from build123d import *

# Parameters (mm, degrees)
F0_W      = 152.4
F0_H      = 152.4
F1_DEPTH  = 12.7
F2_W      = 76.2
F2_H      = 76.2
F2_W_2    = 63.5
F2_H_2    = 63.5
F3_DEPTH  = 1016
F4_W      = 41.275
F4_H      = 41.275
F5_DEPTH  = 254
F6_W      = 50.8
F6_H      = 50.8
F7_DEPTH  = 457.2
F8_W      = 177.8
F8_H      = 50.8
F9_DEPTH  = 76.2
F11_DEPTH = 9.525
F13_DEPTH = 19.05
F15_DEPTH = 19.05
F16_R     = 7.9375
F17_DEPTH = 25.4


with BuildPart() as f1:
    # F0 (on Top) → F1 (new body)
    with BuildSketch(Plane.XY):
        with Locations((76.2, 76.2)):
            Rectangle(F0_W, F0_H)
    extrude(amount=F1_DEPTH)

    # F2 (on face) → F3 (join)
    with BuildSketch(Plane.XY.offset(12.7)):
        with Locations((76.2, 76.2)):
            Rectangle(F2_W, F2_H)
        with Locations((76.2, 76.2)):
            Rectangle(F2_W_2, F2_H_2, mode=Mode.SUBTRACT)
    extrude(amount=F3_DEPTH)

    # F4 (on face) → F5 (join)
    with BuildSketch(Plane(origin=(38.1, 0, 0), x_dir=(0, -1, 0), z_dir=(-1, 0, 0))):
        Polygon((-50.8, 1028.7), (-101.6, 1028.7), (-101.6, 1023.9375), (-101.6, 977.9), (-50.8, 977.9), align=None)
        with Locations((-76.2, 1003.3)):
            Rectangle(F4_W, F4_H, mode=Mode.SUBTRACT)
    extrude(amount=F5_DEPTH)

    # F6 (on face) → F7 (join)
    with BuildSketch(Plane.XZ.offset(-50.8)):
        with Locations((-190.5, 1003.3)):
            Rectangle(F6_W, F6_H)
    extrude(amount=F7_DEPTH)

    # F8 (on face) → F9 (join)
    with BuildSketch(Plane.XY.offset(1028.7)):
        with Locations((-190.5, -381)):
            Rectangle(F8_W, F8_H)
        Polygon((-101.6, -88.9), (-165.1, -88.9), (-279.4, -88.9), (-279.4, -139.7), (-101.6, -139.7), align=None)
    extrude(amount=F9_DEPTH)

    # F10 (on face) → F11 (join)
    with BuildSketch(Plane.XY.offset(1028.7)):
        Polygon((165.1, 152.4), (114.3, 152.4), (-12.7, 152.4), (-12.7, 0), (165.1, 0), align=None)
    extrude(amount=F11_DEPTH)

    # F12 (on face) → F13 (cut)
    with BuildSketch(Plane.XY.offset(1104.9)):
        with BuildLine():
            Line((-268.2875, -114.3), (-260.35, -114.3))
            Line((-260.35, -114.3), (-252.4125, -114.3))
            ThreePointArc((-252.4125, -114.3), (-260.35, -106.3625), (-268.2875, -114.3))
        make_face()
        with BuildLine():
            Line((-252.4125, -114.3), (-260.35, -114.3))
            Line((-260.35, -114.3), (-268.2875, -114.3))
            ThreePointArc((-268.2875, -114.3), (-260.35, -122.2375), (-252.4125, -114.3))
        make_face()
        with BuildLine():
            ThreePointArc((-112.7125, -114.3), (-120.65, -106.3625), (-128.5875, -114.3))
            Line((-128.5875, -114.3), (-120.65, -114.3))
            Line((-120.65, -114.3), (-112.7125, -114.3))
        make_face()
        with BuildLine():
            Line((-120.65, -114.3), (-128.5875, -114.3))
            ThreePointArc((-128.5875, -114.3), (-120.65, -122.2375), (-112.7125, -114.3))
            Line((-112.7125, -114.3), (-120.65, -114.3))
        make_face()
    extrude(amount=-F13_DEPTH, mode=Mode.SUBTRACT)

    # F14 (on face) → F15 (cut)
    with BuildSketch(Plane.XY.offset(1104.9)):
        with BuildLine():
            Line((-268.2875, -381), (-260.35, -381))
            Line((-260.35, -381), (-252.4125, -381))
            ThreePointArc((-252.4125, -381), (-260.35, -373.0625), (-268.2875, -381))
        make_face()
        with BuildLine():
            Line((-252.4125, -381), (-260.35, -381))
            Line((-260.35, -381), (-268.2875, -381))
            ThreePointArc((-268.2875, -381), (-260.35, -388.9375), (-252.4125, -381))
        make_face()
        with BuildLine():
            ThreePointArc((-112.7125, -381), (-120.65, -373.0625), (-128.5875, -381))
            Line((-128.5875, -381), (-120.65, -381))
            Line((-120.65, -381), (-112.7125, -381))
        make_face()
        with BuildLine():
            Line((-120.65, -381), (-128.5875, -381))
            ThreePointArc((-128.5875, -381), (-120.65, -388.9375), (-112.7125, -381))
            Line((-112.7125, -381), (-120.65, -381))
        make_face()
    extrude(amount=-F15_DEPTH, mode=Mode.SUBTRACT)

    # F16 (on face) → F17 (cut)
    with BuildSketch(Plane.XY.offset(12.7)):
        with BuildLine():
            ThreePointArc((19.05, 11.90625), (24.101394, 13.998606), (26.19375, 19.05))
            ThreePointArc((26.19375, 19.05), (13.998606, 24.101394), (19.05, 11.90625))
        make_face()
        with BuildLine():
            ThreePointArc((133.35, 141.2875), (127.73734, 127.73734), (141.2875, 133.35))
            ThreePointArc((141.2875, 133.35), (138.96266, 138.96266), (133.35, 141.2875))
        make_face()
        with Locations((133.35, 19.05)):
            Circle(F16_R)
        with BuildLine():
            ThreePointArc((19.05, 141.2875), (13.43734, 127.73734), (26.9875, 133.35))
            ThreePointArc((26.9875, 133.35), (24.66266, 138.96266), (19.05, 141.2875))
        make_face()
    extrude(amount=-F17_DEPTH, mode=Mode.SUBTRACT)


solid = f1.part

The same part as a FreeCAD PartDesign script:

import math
import FreeCAD as App
import Part
import Sketcher

V = App.Vector
Q = App.Units.Quantity


def add_polygon(sketch, points):
    """Adds a closed chain of lines whose ends are joined by coincident constraints."""
    first, n = sketch.GeometryCount, len(points)
    for a, b in zip(points, points[1:] + points[:1]):
        sketch.addGeometry(Part.LineSegment(App.Vector(*a, 0), App.Vector(*b, 0)), False)
    for i in range(n):
        sketch.addConstraint(Sketcher.Constraint("Coincident", first + i, 2, first + (i + 1) % n, 1))

doc = App.newDocument("Part")
body = doc.addObject("PartDesign::Body", "Body")

# Sketch on XY plane
sketch1 = body.newObject("Sketcher::SketchObject", "Sketch")
sketch1.AttachmentSupport = (doc.getObject("XY_Plane"), [""])
sketch1.MapMode = "FlatFace"
add_polygon(sketch1, [(0, 152), (0, 0), (152, 0), (152, 152)])  # lines 0-3
sketch1.addConstraint([
    Sketcher.Constraint("Vertical", 0),
    Sketcher.Constraint("Horizontal", 1),
    Sketcher.Constraint("Vertical", 2),
    Sketcher.Constraint("Horizontal", 3),
    Sketcher.Constraint("Coincident", 0, 2, -1, 1),
    Sketcher.Constraint("Equal", 3, 0),
    Sketcher.Constraint("DistanceX", 1, 1, 1, 2, Q("6 in")),
])
pad1 = body.newObject("PartDesign::Pad", "Pad")
pad1.Profile = sketch1
pad1.Length = Q("0.5 in")

# Sketch on XY plane
sketch2 = body.newObject("Sketcher::SketchObject", "Sketch001")
sketch2.AttachmentSupport = (doc.getObject("XY_Plane"), [""])
sketch2.MapMode = "FlatFace"
sketch2.AttachmentOffset = App.Placement(V(0, 0, 0.5 * 25.4), App.Rotation())
add_polygon(sketch2, [(38, 114), (38, 38), (114, 38), (114, 114)])  # lines 0-3
add_polygon(sketch2, [(108, 44), (44, 44), (44, 108), (108, 108)])  # lines 4-7
sketch2.addConstraint([
    Sketcher.Constraint("Vertical", 0),
    Sketcher.Constraint("Horizontal", 1),
    Sketcher.Constraint("Vertical", 2),
    Sketcher.Constraint("Horizontal", 3),
    Sketcher.Constraint("Horizontal", 4),
    Sketcher.Constraint("Vertical", 5),
    Sketcher.Constraint("Horizontal", 6),
    Sketcher.Constraint("Vertical", 7),
    Sketcher.Constraint("Equal", 3, 0),
    Sketcher.Constraint("Equal", 6, 5),
    Sketcher.Constraint("DistanceX", 1, 1, 1, 2, Q("3 in")),
    Sketcher.Constraint("DistanceX", 4, 2, 4, 1, Q("2.5 in")),
    Sketcher.Constraint("DistanceX", -1, 1, 0, 2, Q("1.5 in")),
    Sketcher.Constraint("DistanceY", -1, 1, 0, 2, Q("1.5 in")),
    Sketcher.Constraint("DistanceX", -1, 1, 4, 2, Q("1.75 in")),
    Sketcher.Constraint("DistanceY", -1, 1, 4, 2, Q("1.75 in")),
])
pad2 = body.newObject("PartDesign::Pad", "Pad001")
pad2.Profile = sketch2
pad2.Length = Q("40 in")

# Sketch on YZ plane
sketch3 = body.newObject("Sketcher::SketchObject", "Sketch002")
sketch3.AttachmentSupport = (doc.getObject("YZ_Plane"), [""])
sketch3.MapMode = "FlatFace"
sketch3.AttachmentOffset = App.Placement(V(0, 0, 1.5 * 25.4), App.Rotation())
add_polygon(sketch3, [(51, 1029), (102, 1029), (102, 978), (51, 978)])  # lines 0-3
add_polygon(sketch3, [(56, 983), (97, 983), (97, 1024), (56, 1024)])  # lines 4-7
sketch3.addConstraint([
    Sketcher.Constraint("Horizontal", 0),
    Sketcher.Constraint("Vertical", 1),
    Sketcher.Constraint("Horizontal", 2),
    Sketcher.Constraint("Vertical", 3),
    Sketcher.Constraint("Horizontal", 4),
    Sketcher.Constraint("Vertical", 5),
    Sketcher.Constraint("Horizontal", 6),
    Sketcher.Constraint("Vertical", 7),
    Sketcher.Constraint("Equal", 2, 1),
    Sketcher.Constraint("Equal", 6, 5),
    Sketcher.Constraint("DistanceX", 0, 1, 0, 2, Q("2 in")),
    Sketcher.Constraint("DistanceX", -1, 1, 0, 2, Q("4 in")),
    Sketcher.Constraint("DistanceY", -1, 1, 0, 2, Q("40.5 in")),
    Sketcher.Constraint("DistanceX", 4, 1, 4, 2, Q("1.625 in")),
    Sketcher.Constraint("DistanceX", -1, 1, 4, 2, Q("3.8125 in")),
    Sketcher.Constraint("DistanceY", -1, 1, 4, 2, Q("38.6875 in")),
])
pad3 = body.newObject("PartDesign::Pad", "Pad002")
pad3.Profile = sketch3
pad3.Length = Q("10 in")
pad3.Reversed = True

# Sketch on XZ plane
sketch4 = body.newObject("Sketcher::SketchObject", "Sketch003")
sketch4.AttachmentSupport = (doc.getObject("XZ_Plane"), [""])
sketch4.MapMode = "FlatFace"
sketch4.AttachmentOffset = App.Placement(V(0, 0, -2 * 25.4), App.Rotation())
add_polygon(sketch4, [(-216, 1029), (-216, 978), (-165, 978), (-165, 1029)])  # lines 0-3
sketch4.addConstraint([
    Sketcher.Constraint("Vertical", 0),
    Sketcher.Constraint("Horizontal", 1),
    Sketcher.Constraint("Vertical", 2),
    Sketcher.Constraint("Horizontal", 3),
    Sketcher.Constraint("Equal", 3, 0),
    Sketcher.Constraint("DistanceX", 1, 1, 1, 2, Q("2 in")),
    Sketcher.Constraint("DistanceX", 0, 2, -1, 1, Q("8.5 in")),
    Sketcher.Constraint("DistanceY", -1, 1, 0, 2, Q("38.5 in")),
])
pad4 = body.newObject("PartDesign::Pad", "Pad003")
pad4.Profile = sketch4
pad4.Length = Q("18 in")

# Sketch on XY plane
sketch5 = body.newObject("Sketcher::SketchObject", "Sketch004")
sketch5.AttachmentSupport = (doc.getObject("XY_Plane"), [""])
sketch5.MapMode = "FlatFace"
sketch5.AttachmentOffset = App.Placement(V(0, 0, 40.5 * 25.4), App.Rotation())
add_polygon(sketch5, [(-279, -356), (-279, -406), (-102, -406), (-102, -356)])  # lines 0-3
add_polygon(sketch5, [(-102, -89), (-279, -89), (-279, -140), (-102, -140)])  # lines 4-7
sketch5.addConstraint([
    Sketcher.Constraint("Vertical", 0),
    Sketcher.Constraint("Horizontal", 1),
    Sketcher.Constraint("Vertical", 2),
    Sketcher.Constraint("Horizontal", 3),
    Sketcher.Constraint("Horizontal", 4),
    Sketcher.Constraint("Vertical", 5),
    Sketcher.Constraint("Horizontal", 6),
    Sketcher.Constraint("Vertical", 7),
    Sketcher.Constraint("Vertical", 3, 2, 4, 2),
    Sketcher.Constraint("Vertical", 2, 2, 6, 2),
    Sketcher.Constraint("Equal", 2, 5),
    Sketcher.Constraint("DistanceX", 1, 1, 1, 2, Q("7 in")),
    Sketcher.Constraint("DistanceY", 0, 2, 0, 1, Q("2 in")),
    Sketcher.Constraint("DistanceX", 0, 2, -1, 1, Q("11 in")),
    Sketcher.Constraint("DistanceY", 0, 2, -1, 1, Q("16 in")),
    Sketcher.Constraint("DistanceY", 4, 2, -1, 1, Q("3.5 in")),
])
pad5 = body.newObject("PartDesign::Pad", "Pad004")
pad5.Profile = sketch5
pad5.Length = Q("3 in")

# Sketch on XY plane
sketch6 = body.newObject("Sketcher::SketchObject", "Sketch005")
sketch6.AttachmentSupport = (doc.getObject("XY_Plane"), [""])
sketch6.MapMode = "FlatFace"
sketch6.AttachmentOffset = App.Placement(V(0, 0, 40.5 * 25.4), App.Rotation())
add_polygon(sketch6, [(165, 152), (-13, 152), (-13, 0), (165, 0)])  # lines 0-3
sketch6.addConstraint([
    Sketcher.Constraint("Horizontal", 0),
    Sketcher.Constraint("Vertical", 1),
    Sketcher.Constraint("Horizontal", 2),
    Sketcher.Constraint("Vertical", 3),
    Sketcher.Constraint("PointOnObject", 1, 2, -1),
    Sketcher.Constraint("DistanceX", 0, 2, 0, 1, Q("7 in")),
    Sketcher.Constraint("DistanceY", 1, 2, 1, 1, Q("6 in")),
    Sketcher.Constraint("DistanceX", 0, 2, -1, 1, Q("0.5 in")),
])
pad6 = body.newObject("PartDesign::Pad", "Pad005")
pad6.Profile = sketch6
pad6.Length = Q("0.375 in")

# Sketch on XY plane
sketch7 = body.newObject("Sketcher::SketchObject", "Sketch006")
sketch7.AttachmentSupport = (doc.getObject("XY_Plane"), [""])
sketch7.MapMode = "FlatFace"
sketch7.AttachmentOffset = App.Placement(V(0, 0, 43.5 * 25.4), App.Rotation())
sketch7.addGeometry([
    Part.Circle(V(-260, -114, 0), V(0, 0, 1), 8),
    Part.Circle(V(-121, -114, 0), V(0, 0, 1), 8),
], False)
sketch7.addConstraint([
    Sketcher.Constraint("Equal", 0, 1),
    Sketcher.Constraint("Horizontal", 0, 3, 1, 3),
    Sketcher.Constraint("Diameter", 0, Q("0.625 in")),
    Sketcher.Constraint("DistanceY", 0, 3, -1, 1, Q("4.5 in")),
    Sketcher.Constraint("DistanceX", 0, 3, 1, 3, Q("5.5 in")),
    Sketcher.Constraint("DistanceX", 0, 3, -1, 1, Q("10.25 in")),
])
pocket1 = body.newObject("PartDesign::Pocket", "Pocket")
pocket1.Profile = sketch7
pocket1.Length = Q("0.75 in")

# Sketch on XY plane
sketch8 = body.newObject("Sketcher::SketchObject", "Sketch007")
sketch8.AttachmentSupport = (doc.getObject("XY_Plane"), [""])
sketch8.MapMode = "FlatFace"
sketch8.AttachmentOffset = App.Placement(V(0, 0, 43.5 * 25.4), App.Rotation())
sketch8.addGeometry([
    Part.Circle(V(-260, -381, 0), V(0, 0, 1), 8),
    Part.Circle(V(-121, -381, 0), V(0, 0, 1), 8),
], False)
sketch8.addConstraint([
    Sketcher.Constraint("Equal", 0, 1),
    Sketcher.Constraint("Horizontal", 0, 3, 1, 3),
    Sketcher.Constraint("Diameter", 0, Q("0.625 in")),
    Sketcher.Constraint("DistanceY", 0, 3, -1, 1, Q("15 in")),
    Sketcher.Constraint("DistanceX", 0, 3, 1, 3, Q("5.5 in")),
    Sketcher.Constraint("DistanceX", 0, 3, -1, 1, Q("10.25 in")),
])
pocket2 = body.newObject("PartDesign::Pocket", "Pocket001")
pocket2.Profile = sketch8
pocket2.Length = Q("0.75 in")

# Sketch on XY plane
sketch9 = body.newObject("Sketcher::SketchObject", "Sketch008")
sketch9.AttachmentSupport = (doc.getObject("XY_Plane"), [""])
sketch9.MapMode = "FlatFace"
sketch9.AttachmentOffset = App.Placement(V(0, 0, 0.5 * 25.4), App.Rotation())
sketch9.addGeometry([
    Part.ArcOfCircle(Part.Circle(V(19, 19, 0), V(0, 0, 1), 7), math.radians(-90), math.radians(0)),  # 0
    Part.ArcOfCircle(Part.Circle(V(19, 19, 0), V(0, 0, 1), 7), math.radians(0), math.radians(270)),  # 1
    Part.ArcOfCircle(Part.Circle(V(133, 133, 0), V(0, 0, 1), 8), math.radians(90), math.radians(360)),  # 2
    Part.ArcOfCircle(Part.Circle(V(133, 133, 0), V(0, 0, 1), 8), math.radians(0), math.radians(90)),  # 3
    Part.Circle(V(133, 19, 0), V(0, 0, 1), 8),  # 4
    Part.ArcOfCircle(Part.Circle(V(19, 133, 0), V(0, 0, 1), 8), math.radians(90), math.radians(360)),  # 5
    Part.ArcOfCircle(Part.Circle(V(19, 133, 0), V(0, 0, 1), 8), math.radians(0), math.radians(90)),  # 6
], False)
sketch9.addConstraint([
    Sketcher.Constraint("Tangent", 0, 1, 1, 2),
    Sketcher.Constraint("Coincident", 1, 1, 0, 2),
    Sketcher.Constraint("Tangent", 2, 1, 3, 2),
    Sketcher.Constraint("Coincident", 3, 1, 2, 2),
    Sketcher.Constraint("Tangent", 5, 1, 6, 2),
    Sketcher.Constraint("Coincident", 6, 1, 5, 2),
    Sketcher.Constraint("Equal", 3, 4),
    Sketcher.Constraint("Equal", 4, 5),
    Sketcher.Constraint("Horizontal", 1, 3, 4, 3),
    Sketcher.Constraint("Horizontal", 3, 3, 5, 3),
    Sketcher.Constraint("Horizontal", 4, 3, 1, 1),
    Sketcher.Constraint("Horizontal", 6, 3, 3, 1),
    Sketcher.Constraint("Horizontal", 3, 1, 6, 1),
    Sketcher.Constraint("Vertical", 3, 3, 4, 3),
    Sketcher.Constraint("Vertical", 1, 3, 5, 3),
    Sketcher.Constraint("Vertical", 6, 3, 0, 1),
    Sketcher.Constraint("Vertical", 4, 3, 2, 1),
    Sketcher.Constraint("Vertical", 0, 1, 5, 1),
    Sketcher.Constraint("Diameter", 4, Q("0.625 in")),
    Sketcher.Constraint("Radius", 0, Q("0.28125 in")),
    Sketcher.Constraint("DistanceX", 1, 3, 2, 3, Q("4.5 in")),
    Sketcher.Constraint("DistanceY", 1, 3, 2, 3, Q("4.5 in")),
    Sketcher.Constraint("DistanceX", -1, 1, 0, 3, Q("0.75 in")),
    Sketcher.Constraint("DistanceY", -1, 1, 0, 3, Q("0.75 in")),
])
pocket3 = body.newObject("PartDesign::Pocket", "Pocket002")
pocket3.Profile = sketch9
pocket3.Length = Q("1 in")

doc.recompute()
